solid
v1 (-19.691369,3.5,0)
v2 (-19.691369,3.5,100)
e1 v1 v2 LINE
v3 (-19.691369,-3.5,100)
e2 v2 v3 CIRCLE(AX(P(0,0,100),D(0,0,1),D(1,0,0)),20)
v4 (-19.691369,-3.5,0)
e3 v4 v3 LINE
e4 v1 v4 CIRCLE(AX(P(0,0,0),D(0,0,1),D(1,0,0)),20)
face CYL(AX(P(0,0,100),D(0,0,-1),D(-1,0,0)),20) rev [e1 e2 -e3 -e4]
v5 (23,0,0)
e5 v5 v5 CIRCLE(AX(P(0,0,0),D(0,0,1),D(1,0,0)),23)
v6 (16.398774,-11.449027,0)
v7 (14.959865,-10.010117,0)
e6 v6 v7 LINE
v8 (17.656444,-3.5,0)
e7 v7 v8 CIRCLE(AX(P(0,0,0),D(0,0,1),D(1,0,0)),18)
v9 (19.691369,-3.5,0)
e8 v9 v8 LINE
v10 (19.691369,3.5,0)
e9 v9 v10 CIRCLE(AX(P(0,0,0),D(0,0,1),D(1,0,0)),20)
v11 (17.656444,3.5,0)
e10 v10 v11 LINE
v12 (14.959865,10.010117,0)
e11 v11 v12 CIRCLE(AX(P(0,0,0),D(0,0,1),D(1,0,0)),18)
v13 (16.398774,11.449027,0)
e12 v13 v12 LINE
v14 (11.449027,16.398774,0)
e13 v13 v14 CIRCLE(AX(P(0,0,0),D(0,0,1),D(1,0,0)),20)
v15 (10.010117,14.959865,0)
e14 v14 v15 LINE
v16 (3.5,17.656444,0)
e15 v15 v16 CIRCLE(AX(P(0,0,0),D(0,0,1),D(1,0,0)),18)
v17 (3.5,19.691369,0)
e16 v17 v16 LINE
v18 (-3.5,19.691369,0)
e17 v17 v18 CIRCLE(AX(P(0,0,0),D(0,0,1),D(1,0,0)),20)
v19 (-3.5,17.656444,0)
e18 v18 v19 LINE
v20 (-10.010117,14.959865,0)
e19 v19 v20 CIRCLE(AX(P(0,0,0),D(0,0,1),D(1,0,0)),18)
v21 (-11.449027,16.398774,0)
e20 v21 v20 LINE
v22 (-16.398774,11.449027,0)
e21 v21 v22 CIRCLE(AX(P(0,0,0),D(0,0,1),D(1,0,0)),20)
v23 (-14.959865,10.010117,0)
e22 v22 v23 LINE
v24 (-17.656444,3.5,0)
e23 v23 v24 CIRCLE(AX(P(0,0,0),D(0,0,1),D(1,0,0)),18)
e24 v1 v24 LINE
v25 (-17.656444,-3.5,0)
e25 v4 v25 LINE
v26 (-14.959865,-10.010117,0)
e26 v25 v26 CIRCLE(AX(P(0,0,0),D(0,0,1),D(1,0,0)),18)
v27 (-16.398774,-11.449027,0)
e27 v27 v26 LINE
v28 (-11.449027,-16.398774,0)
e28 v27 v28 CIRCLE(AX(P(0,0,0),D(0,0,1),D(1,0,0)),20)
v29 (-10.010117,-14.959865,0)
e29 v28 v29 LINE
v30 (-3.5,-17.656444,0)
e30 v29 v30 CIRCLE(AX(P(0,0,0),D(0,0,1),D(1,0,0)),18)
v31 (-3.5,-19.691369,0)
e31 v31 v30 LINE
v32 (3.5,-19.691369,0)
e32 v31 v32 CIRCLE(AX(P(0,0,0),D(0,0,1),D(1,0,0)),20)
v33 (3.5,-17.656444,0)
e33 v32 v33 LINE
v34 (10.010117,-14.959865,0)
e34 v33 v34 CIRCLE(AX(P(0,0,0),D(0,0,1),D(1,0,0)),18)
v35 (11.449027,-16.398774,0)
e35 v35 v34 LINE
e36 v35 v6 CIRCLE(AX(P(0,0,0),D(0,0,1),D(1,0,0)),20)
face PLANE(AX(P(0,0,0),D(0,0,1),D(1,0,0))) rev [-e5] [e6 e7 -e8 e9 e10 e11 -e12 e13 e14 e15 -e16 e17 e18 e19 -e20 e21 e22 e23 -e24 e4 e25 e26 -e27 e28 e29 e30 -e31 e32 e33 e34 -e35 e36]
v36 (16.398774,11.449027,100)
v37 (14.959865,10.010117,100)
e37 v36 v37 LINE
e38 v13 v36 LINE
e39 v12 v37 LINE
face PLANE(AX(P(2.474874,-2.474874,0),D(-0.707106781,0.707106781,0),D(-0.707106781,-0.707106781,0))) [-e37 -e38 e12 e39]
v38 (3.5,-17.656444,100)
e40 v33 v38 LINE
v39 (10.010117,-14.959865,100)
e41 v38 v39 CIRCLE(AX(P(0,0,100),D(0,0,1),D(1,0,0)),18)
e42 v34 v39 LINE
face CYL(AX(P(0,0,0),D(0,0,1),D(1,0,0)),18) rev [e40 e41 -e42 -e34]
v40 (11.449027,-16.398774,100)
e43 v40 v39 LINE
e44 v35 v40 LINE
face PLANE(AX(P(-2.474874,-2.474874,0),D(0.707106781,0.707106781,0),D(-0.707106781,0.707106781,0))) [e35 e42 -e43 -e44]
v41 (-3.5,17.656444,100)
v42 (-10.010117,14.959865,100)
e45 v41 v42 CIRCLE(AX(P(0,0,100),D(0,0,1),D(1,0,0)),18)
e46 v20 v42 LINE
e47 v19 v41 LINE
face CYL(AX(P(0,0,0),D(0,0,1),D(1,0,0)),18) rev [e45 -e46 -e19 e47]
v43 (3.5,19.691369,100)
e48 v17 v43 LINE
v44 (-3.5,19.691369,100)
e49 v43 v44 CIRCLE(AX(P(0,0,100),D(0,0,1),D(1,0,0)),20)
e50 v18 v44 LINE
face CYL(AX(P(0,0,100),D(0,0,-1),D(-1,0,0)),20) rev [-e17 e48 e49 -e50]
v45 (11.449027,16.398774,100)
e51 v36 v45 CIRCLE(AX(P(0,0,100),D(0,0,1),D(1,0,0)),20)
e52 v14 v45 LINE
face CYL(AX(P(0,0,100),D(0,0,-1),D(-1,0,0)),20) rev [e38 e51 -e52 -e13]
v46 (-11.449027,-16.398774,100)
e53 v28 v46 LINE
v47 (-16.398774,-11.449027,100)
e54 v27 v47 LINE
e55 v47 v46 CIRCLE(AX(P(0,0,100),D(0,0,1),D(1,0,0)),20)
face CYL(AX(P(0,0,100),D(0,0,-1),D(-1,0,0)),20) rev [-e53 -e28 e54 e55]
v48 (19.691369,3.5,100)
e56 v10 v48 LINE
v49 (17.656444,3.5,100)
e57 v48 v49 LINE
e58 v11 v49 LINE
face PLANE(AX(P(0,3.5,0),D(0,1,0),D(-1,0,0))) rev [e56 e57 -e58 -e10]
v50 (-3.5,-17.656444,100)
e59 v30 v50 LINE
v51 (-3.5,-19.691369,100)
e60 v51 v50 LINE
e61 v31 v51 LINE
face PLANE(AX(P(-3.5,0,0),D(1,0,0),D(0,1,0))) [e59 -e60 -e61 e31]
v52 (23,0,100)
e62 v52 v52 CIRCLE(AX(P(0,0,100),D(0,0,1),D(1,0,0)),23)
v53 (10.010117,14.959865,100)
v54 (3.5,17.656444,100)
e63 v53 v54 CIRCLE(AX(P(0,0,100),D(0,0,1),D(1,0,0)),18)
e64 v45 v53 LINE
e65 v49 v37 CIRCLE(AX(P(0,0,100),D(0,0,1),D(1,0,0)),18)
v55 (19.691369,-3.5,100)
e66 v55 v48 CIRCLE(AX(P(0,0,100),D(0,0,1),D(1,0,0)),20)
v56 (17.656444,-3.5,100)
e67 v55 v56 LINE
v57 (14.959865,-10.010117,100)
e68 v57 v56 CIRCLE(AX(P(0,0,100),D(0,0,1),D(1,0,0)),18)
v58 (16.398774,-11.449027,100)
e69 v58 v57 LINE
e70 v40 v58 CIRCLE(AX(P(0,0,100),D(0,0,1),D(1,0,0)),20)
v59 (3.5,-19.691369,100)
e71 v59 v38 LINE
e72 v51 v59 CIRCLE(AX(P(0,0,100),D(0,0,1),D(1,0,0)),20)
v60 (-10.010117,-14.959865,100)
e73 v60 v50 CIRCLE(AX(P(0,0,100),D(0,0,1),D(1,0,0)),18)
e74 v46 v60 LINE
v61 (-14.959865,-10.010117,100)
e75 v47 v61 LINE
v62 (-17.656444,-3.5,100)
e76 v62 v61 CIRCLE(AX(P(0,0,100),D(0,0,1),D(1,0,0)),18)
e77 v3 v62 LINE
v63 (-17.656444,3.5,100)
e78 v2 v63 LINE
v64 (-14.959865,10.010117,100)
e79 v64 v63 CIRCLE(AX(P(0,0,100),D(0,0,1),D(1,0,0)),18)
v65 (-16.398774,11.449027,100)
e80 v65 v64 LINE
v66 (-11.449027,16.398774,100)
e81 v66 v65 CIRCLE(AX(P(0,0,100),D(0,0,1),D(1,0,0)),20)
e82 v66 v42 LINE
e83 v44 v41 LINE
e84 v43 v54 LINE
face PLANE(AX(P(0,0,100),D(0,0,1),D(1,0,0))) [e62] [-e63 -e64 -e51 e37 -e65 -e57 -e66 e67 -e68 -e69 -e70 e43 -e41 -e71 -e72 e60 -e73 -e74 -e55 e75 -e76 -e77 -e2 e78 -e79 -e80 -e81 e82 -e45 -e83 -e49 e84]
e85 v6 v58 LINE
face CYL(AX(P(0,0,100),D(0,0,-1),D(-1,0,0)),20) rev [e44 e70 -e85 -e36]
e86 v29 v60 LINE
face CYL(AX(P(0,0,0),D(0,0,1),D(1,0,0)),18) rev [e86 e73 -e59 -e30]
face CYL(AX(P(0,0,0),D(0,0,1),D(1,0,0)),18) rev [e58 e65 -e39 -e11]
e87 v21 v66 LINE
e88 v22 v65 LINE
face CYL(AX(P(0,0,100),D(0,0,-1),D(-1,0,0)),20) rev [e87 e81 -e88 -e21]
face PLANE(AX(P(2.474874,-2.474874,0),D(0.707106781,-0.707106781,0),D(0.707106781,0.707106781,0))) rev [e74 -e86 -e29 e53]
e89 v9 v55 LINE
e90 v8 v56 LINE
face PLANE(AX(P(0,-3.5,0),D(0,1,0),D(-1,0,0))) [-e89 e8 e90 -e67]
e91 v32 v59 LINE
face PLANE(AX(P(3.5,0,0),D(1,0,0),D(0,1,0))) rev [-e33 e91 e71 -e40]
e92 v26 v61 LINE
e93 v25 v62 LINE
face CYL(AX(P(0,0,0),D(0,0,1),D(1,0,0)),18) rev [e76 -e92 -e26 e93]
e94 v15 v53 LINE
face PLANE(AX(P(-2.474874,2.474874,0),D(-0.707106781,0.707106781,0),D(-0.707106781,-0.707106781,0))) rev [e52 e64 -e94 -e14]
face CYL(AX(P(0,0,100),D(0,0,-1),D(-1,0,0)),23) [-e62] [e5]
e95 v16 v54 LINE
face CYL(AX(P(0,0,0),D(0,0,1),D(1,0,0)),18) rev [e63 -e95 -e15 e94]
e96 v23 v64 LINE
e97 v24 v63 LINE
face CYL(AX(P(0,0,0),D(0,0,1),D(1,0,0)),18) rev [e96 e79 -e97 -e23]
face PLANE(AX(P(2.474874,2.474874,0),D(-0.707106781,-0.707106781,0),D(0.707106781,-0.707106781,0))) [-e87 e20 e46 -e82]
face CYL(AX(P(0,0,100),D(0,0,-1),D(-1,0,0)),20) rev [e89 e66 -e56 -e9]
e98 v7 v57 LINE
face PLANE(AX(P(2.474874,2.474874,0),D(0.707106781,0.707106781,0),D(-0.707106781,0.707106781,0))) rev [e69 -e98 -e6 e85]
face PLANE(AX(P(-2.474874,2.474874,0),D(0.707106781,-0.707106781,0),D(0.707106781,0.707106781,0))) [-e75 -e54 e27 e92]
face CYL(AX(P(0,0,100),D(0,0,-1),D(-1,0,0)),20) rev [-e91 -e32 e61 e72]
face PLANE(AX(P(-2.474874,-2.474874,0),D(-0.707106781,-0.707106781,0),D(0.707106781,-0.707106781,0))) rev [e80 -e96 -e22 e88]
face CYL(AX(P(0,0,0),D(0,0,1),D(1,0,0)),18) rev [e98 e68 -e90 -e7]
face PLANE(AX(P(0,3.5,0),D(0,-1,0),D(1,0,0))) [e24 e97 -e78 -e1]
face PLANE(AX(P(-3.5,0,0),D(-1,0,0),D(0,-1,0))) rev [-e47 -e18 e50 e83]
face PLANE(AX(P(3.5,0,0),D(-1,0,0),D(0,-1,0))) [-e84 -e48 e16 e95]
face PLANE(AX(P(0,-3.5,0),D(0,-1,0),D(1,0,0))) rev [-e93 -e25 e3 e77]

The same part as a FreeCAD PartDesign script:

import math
import FreeCAD as App
import Part
import Sketcher
from FreeCAD import Vector

doc = App.newDocument("Part")
body = doc.addObject("PartDesign::Body", "Body")

# Sketch on XY plane
sketch1 = body.newObject("Sketcher::SketchObject", "Sketch")
sketch1.AttachmentSupport = (doc.getObject("XY_Plane"), [""])
sketch1.MapMode = "FlatFace"
sketch1.addGeometry([
    Part.Circle(Vector(0, 0, 0), Vector(0, 0, 1), 23),
    Part.Circle(Vector(0, 0, 0), Vector(0, 0, 1), 20),
], False)
sketch1.addConstraint([
    Sketcher.Constraint("Coincident", 0, 3, -1, 1),
    Sketcher.Constraint("Coincident", 1, 3, -1, 1),
    Sketcher.Constraint("Diameter", 0, 46.0),
    Sketcher.Constraint("Diameter", 1, 40.0),
])
pad1 = body.newObject("PartDesign::Pad", "Pad")
pad1.Profile = sketch1
pad1.Length = 100

# Sketch on XY plane
sketch2 = body.newObject("Sketcher::SketchObject", "Sketch001")
sketch2.AttachmentSupport = (doc.getObject("XY_Plane"), [""])
sketch2.MapMode = "FlatFace"
sketch2.addGeometry([
    Part.LineSegment(Vector(-15, 10, 0), Vector(-16.4, 11.4, 0)),  # 0
    Part.ArcOfCircle(Part.Circle(Vector(0, 0, 0), Vector(0, 0, 1), 20), math.radians(145), math.radians(170)),  # 1
    Part.LineSegment(Vector(-19.7, 3.5, 0), Vector(-17.7, 3.5, 0)),  # 2
    Part.ArcOfCircle(Part.Circle(Vector(0, 0, 0), Vector(0, 0, 1), 18), math.radians(146), math.radians(169)),  # 3
    Part.LineSegment(Vector(-3.5, 17.7, 0), Vector(-3.5, 19.7, 0)),  # 4
    Part.ArcOfCircle(Part.Circle(Vector(0, 0, 0), Vector(0, 0, 1), 20), math.radians(100), math.radians(125)),  # 5
    Part.LineSegment(Vector(-11.4, 16.4, 0), Vector(-10, 15, 0)),  # 6
    Part.ArcOfCircle(Part.Circle(Vector(0, 0, 0), Vector(0, 0, 1), 18), math.radians(101), math.radians(124)),  # 7
    Part.LineSegment(Vector(10, 15, 0), Vector(11.4, 16.4, 0)),  # 8
    Part.ArcOfCircle(Part.Circle(Vector(0, 0, 0), Vector(0, 0, 1), 20), math.radians(55), math.radians(80)),  # 9
    Part.LineSegment(Vector(3.5, 19.7, 0), Vector(3.5, 17.7, 0)),  # 10
    Part.ArcOfCircle(Part.Circle(Vector(0, 0, 0), Vector(0, 0, 1), 18), math.radians(56), math.radians(79)),  # 11
    Part.ArcOfCircle(Part.Circle(Vector(0, 0, 0), Vector(0, 0, 1), 20), math.radians(10), math.radians(35)),  # 12
    Part.LineSegment(Vector(16.4, 11.4, 0), Vector(15, 10, 0)),  # 13
    Part.ArcOfCircle(Part.Circle(Vector(0, 0, 0), Vector(0, 0, 1), 18), math.radians(11), math.radians(34)),  # 14
    Part.LineSegment(Vector(17.7, 3.5, 0), Vector(19.7, 3.5, 0)),  # 15
    Part.ArcOfCircle(Part.Circle(Vector(0, 0, 0), Vector(0, 0, 1), 20), math.radians(-35), math.radians(-10)),  # 16
    Part.LineSegment(Vector(19.7, -3.5, 0), Vector(17.7, -3.5, 0)),  # 17
    Part.ArcOfCircle(Part.Circle(Vector(0, 0, 0), Vector(0, 0, 1), 18), math.radians(-34), math.radians(-11)),  # 18
    Part.LineSegment(Vector(15, -10, 0), Vector(16.4, -11.4, 0)),  # 19
    Part.ArcOfCircle(Part.Circle(Vector(0, 0, 0), Vector(0, 0, 1), 20), math.radians(-80), math.radians(-55)),  # 20
    Part.LineSegment(Vector(11.4, -16.4, 0), Vector(10, -15, 0)),  # 21
    Part.ArcOfCircle(Part.Circle(Vector(0, 0, 0), Vector(0, 0, 1), 18), math.radians(-79), math.radians(-56)),  # 22
    Part.LineSegment(Vector(3.5, -17.7, 0), Vector(3.5, -19.7, 0)),  # 23
    Part.LineSegment(Vector(-10, -15, 0), Vector(-11.4, -16.4, 0)),  # 24
    Part.ArcOfCircle(Part.Circle(Vector(0, 0, 0), Vector(0, 0, 1), 20), math.radians(-125), math.radians(-100)),  # 25
    Part.LineSegment(Vector(-3.5, -19.7, 0), Vector(-3.5, -17.7, 0)),  # 26
    Part.ArcOfCircle(Part.Circle(Vector(0, 0, 0), Vector(0, 0, 1), 18), math.radians(-124), math.radians(-101)),  # 27
    Part.LineSegment(Vector(-17.7, -3.5, 0), Vector(-19.7, -3.5, 0)),  # 28
    Part.ArcOfCircle(Part.Circle(Vector(0, 0, 0), Vector(0, 0, 1), 20), math.radians(-170), math.radians(-145)),  # 29
    Part.LineSegment(Vector(-16.4, -11.4, 0), Vector(-15, -10, 0)),  # 30
    Part.ArcOfCircle(Part.Circle(Vector(0, 0, 0), Vector(0, 0, 1), 18), math.radians(-169), math.radians(-146)),  # 31
], False)
sketch2.addConstraint([
    Sketcher.Constraint("Coincident", 0, 2, 1, 1),
    Sketcher.Constraint("Coincident", 1, 2, 2, 1),
    Sketcher.Constraint("Coincident", 2, 2, 3, 2),
    Sketcher.Constraint("Coincident", 3, 1, 0, 1),
    Sketcher.Constraint("Coincident", 4, 2, 5, 1),
    Sketcher.Constraint("Coincident", 5, 2, 6, 1),
    Sketcher.Constraint("Coincident", 6, 2, 7, 2),
    Sketcher.Constraint("Coincident", 7, 1, 4, 1),
    Sketcher.Constraint("Coincident", 8, 2, 9, 1),
    Sketcher.Constraint("Coincident", 9, 2, 10, 1),
    Sketcher.Constraint("Coincident", 10, 2, 11, 2),
    Sketcher.Constraint("Coincident", 11, 1, 8, 1),
    Sketcher.Constraint("Coincident", 12, 2, 13, 1),
    Sketcher.Constraint("Coincident", 13, 2, 14, 2),
    Sketcher.Constraint("Coincident", 14, 1, 15, 1),
    Sketcher.Constraint("Coincident", 15, 2, 12, 1),
    Sketcher.Constraint("Coincident", 16, 2, 17, 1),
    Sketcher.Constraint("Coincident", 17, 2, 18, 2),
    Sketcher.Constraint("Coincident", 18, 1, 19, 1),
    Sketcher.Constraint("Coincident", 19, 2, 16, 1),
    Sketcher.Constraint("Coincident", 20, 2, 21, 1),
    Sketcher.Constraint("Coincident", 21, 2, 22, 2),
    Sketcher.Constraint("Coincident", 22, 1, 23, 1),
    Sketcher.Constraint("Coincident", 23, 2, 20, 1),
    Sketcher.Constraint("Coincident", 24, 2, 25, 1),
    Sketcher.Constraint("Coincident", 25, 2, 26, 1),
    Sketcher.Constraint("Coincident", 26, 2, 27, 2),
    Sketcher.Constraint("Coincident", 27, 1, 24, 1),
    Sketcher.Constraint("Coincident", 28, 2, 29, 1),
    Sketcher.Constraint("Coincident", 29, 2, 30, 1),
    Sketcher.Constraint("Coincident", 30, 2, 31, 2),
    Sketcher.Constraint("Coincident", 31, 1, 28, 1),
    Sketcher.Constraint("Horizontal", 2),
    Sketcher.Constraint("Vertical", 4),
    Sketcher.Constraint("Vertical", 10),
    Sketcher.Constraint("Horizontal", 15),
    Sketcher.Constraint("Horizontal", 17),
    Sketcher.Constraint("Vertical", 23),
    Sketcher.Constraint("Vertical", 26),
    Sketcher.Constraint("Horizontal", 28),
    Sketcher.Constraint("Coincident", 1, 3, -1, 1),
    Sketcher.Constraint("Coincident", 3, 3, -1, 1),
    Sketcher.Constraint("Coincident", 5, 3, -1, 1),
    Sketcher.Constraint("Coincident", 7, 3, -1, 1),
    Sketcher.Constraint("Coincident", 9, 3, -1, 1),
    Sketcher.Constraint("Coincident", 11, 3, -1, 1),
    Sketcher.Constraint("Coincident", 12, 3, -1, 1),
    Sketcher.Constraint("Coincident", 14, 3, -1, 1),
    Sketcher.Constraint("Coincident", 16, 3, -1, 1),
    Sketcher.Constraint("Coincident", 18, 3, -1, 1),
    Sketcher.Constraint("Coincident", 20, 3, -1, 1),
    Sketcher.Constraint("Coincident", 22, 3, -1, 1),
    Sketcher.Constraint("Coincident", 25, 3, -1, 1),
    Sketcher.Constraint("Coincident", 27, 3, -1, 1),
    Sketcher.Constraint("Coincident", 29, 3, -1, 1),
    Sketcher.Constraint("Coincident", 31, 3, -1, 1),
    Sketcher.Constraint("Equal", 1, 5),
    Sketcher.Constraint("Equal", 3, 7),
    Sketcher.Constraint("Equal", 5, 9),
    Sketcher.Constraint("Equal", 7, 11),
    Sketcher.Constraint("Equal", 9, 12),
    Sketcher.Constraint("Equal", 11, 14),
    Sketcher.Constraint("Equal", 12, 16),
    Sketcher.Constraint("Equal", 14, 18),
    Sketcher.Constraint("Equal", 16, 20),
    Sketcher.Constraint("Equal", 18, 22),
    Sketcher.Constraint("Equal", 20, 25),
    Sketcher.Constraint("Equal", 22, 27),
    Sketcher.Constraint("Equal", 25, 29),
    Sketcher.Constraint("Equal", 27, 31),
    Sketcher.Constraint("Parallel", 0, 6),
    Sketcher.Constraint("Perpendicular", 6, 8),
    Sketcher.Constraint("Parallel", 8, 13),
    Sketcher.Constraint("Perpendicular", 13, 19),
    Sketcher.Constraint("Parallel", 19, 21),
    Sketcher.Constraint("Perpendicular", 21, 24),
    Sketcher.Constraint("Parallel", 24, 30),
    Sketcher.Constraint("Horizontal", 5, 2, 8, 2),
    Sketcher.Constraint("Horizontal", 4, 2, 9, 2),
    Sketcher.Constraint("Horizontal", 6, 2, 11, 1),
    Sketcher.Constraint("Horizontal", 0, 2, 12, 2),
    Sketcher.Constraint("Horizontal", 2, 2, 14, 1),
    Sketcher.Constraint("Horizontal", 20, 2, 24, 2),
    Sketcher.Constraint("Horizontal", 23, 2, 25, 2),
    Sketcher.Constraint("Horizontal", 17, 2, 28, 2),
    Sketcher.Constraint("Horizontal", 19, 2, 29, 2),
    Sketcher.Constraint("Vertical", 15, 2, 16, 2),
    Sketcher.Constraint("Vertical", 13, 2, 18, 1),
    Sketcher.Constraint("Vertical", 8, 2, 20, 2),
    Sketcher.Constraint("Vertical", 10, 2, 22, 1),
    Sketcher.Constraint("Equal", 28, 4),
    Sketcher.Constraint("Equal", 0, 6),
    Sketcher.Constraint("Radius", 1, 20.0),
    Sketcher.Constraint("Radius", 3, 18.0),
    Sketcher.Constraint("DistanceX", 4, 2, 9, 2, 7.0),
    Sketcher.Constraint("DistanceX", 2, 2, 0, 2, 1.25767),
])
pad2 = body.newObject("PartDesign::Pad", "Pad001")
pad2.Profile = sketch2
pad2.Length = 100

doc.recompute()
